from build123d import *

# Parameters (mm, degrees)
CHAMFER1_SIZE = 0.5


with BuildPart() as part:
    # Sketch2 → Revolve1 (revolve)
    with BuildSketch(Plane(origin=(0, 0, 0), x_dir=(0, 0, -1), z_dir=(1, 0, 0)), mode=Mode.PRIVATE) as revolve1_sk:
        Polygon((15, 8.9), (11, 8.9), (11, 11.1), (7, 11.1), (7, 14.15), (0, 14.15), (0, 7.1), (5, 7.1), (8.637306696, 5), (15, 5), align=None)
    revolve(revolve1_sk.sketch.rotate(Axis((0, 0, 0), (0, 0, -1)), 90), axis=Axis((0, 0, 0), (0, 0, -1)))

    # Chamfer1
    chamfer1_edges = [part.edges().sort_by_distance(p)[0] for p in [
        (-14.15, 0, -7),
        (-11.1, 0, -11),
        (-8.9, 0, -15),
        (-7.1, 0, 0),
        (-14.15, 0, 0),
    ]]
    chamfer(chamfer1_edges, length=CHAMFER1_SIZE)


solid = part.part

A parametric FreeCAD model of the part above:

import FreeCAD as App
import Part
import Sketcher
from FreeCAD import Vector
Q = App.Units.Quantity


def edges_at(feature, points):
    """Names of the edges that pass closest to the given points."""
    edges = feature.Shape.Edges
    near = lambda p: min(range(len(edges)), key=lambda i: edges[i].distToShape(Part.Vertex(*p))[0])
    return sorted({f"Edge{near(p) + 1}" for p in points})

doc = App.newDocument("Part")
body = doc.addObject("PartDesign::Body", "Body")

sketch1 = body.newObject("Sketcher::SketchObject", "Sketch")
sketch1.AttachmentSupport = (doc.getObject("YZ_Plane"), [""])
sketch1.MapMode = "FlatFace"
sketch1.addGeometry(Part.LineSegment(Vector(8.9, -15, 0), Vector(8.9, -11, 0)), False)
sketch1.addGeometry(Part.LineSegment(Vector(8.9, -11, 0), Vector(11.1, -11, 0)), False)
sketch1.addGeometry(Part.LineSegment(Vector(11.1, -11, 0), Vector(11.1, -7, 0)), False)
sketch1.addGeometry(Part.LineSegment(Vector(11.1, -7, 0), Vector(14.2, -7, 0)), False)
sketch1.addGeometry(Part.LineSegment(Vector(14.2, -7, 0), Vector(14.2, 0, 0)), False)
sketch1.addGeometry(Part.LineSegment(Vector(14.2, 0, 0), Vector(7.1, 0, 0)), False)
sketch1.addGeometry(Part.LineSegment(Vector(7.1, 0, 0), Vector(7.1, -5, 0)), False)
sketch1.addGeometry(Part.LineSegment(Vector(7.1, -5, 0), Vector(5, -8.6, 0)), False)
sketch1.addGeometry(Part.LineSegment(Vector(5, -8.6, 0), Vector(5, -15, 0)), False)
sketch1.addGeometry(Part.LineSegment(Vector(5, -15, 0), Vector(8.9, -15, 0)), False)
sketch1.addConstraint(Sketcher.Constraint("Coincident", 0, 2, 1, 1))
sketch1.addConstraint(Sketcher.Constraint("Coincident", 1, 2, 2, 1))
sketch1.addConstraint(Sketcher.Constraint("Coincident", 2, 2, 3, 1))
sketch1.addConstraint(Sketcher.Constraint("Coincident", 3, 2, 4, 1))
sketch1.addConstraint(Sketcher.Constraint("Coincident", 4, 2, 5, 1))
sketch1.addConstraint(Sketcher.Constraint("Coincident", 5, 2, 6, 1))
sketch1.addConstraint(Sketcher.Constraint("Coincident", 6, 2, 7, 1))
sketch1.addConstraint(Sketcher.Constraint("Coincident", 7, 2, 8, 1))
sketch1.addConstraint(Sketcher.Constraint("Coincident", 8, 2, 9, 1))
sketch1.addConstraint(Sketcher.Constraint("Coincident", 9, 2, 0, 1))
sketch1.addConstraint(Sketcher.Constraint("Vertical", 0))
sketch1.addConstraint(Sketcher.Constraint("Horizontal", 1))
sketch1.addConstraint(Sketcher.Constraint("Vertical", 2))
sketch1.addConstraint(Sketcher.Constraint("Horizontal", 3))
sketch1.addConstraint(Sketcher.Constraint("Vertical", 4))
sketch1.addConstraint(Sketcher.Constraint("Horizontal", 5))
sketch1.addConstraint(Sketcher.Constraint("Vertical", 6))
sketch1.addConstraint(Sketcher.Constraint("Vertical", 8))
sketch1.addConstraint(Sketcher.Constraint("Horizontal", 9))
sketch1.addConstraint(Sketcher.Constraint("PointOnObject", 4, 2, -1))
sketch1.addConstraint(Sketcher.Constraint("Equal", 0, 2))
sketch1.addConstraint(Sketcher.Constraint("DistanceY", 0, 1, 0, 2, 4.0))
sketch1.addConstraint(Sketcher.Constraint("DistanceY", 4, 1, 4, 2, 7.0))
sketch1.addConstraint(Sketcher.Constraint("DistanceY", 6, 2, 6, 1, 5.0))
sketch1.addConstraint(Sketcher.Constraint("Angle", 7, Q("-120 deg")))
sketch1.addConstraint(Sketcher.Constraint("DistanceX", 1, 1, 1, 2, 2.2))
sketch1.addConstraint(Sketcher.Constraint("DistanceX", 9, 1, 9, 2, 3.9))
sketch1.addConstraint(Sketcher.Constraint("DistanceX", -1, 1, 7, 2, 5.0))
sketch1.addConstraint(Sketcher.Constraint("DistanceX", 5, 2, 2, 2, 4.0))
sketch1.addConstraint(Sketcher.Constraint("DistanceX", 3, 1, 3, 2, 3.05))
revolution = body.newObject("PartDesign::Revolution", "Revolution")
revolution.Profile = sketch1
revolution.ReferenceAxis = (sketch1, ["V_Axis"])
revolution.Angle = 360
doc.recompute()

chamfer = body.newObject("PartDesign::Chamfer", "Chamfer")
chamfer.Base = (revolution, edges_at(revolution, [
    (-14.15, 0, -7),
    (-11.1, 0, -11),
    (-8.9, 0, -15),
    (-7.1, 0, 0),
    (-14.15, 0, 0),
]))
chamfer.Size = 0.5

doc.recompute()
